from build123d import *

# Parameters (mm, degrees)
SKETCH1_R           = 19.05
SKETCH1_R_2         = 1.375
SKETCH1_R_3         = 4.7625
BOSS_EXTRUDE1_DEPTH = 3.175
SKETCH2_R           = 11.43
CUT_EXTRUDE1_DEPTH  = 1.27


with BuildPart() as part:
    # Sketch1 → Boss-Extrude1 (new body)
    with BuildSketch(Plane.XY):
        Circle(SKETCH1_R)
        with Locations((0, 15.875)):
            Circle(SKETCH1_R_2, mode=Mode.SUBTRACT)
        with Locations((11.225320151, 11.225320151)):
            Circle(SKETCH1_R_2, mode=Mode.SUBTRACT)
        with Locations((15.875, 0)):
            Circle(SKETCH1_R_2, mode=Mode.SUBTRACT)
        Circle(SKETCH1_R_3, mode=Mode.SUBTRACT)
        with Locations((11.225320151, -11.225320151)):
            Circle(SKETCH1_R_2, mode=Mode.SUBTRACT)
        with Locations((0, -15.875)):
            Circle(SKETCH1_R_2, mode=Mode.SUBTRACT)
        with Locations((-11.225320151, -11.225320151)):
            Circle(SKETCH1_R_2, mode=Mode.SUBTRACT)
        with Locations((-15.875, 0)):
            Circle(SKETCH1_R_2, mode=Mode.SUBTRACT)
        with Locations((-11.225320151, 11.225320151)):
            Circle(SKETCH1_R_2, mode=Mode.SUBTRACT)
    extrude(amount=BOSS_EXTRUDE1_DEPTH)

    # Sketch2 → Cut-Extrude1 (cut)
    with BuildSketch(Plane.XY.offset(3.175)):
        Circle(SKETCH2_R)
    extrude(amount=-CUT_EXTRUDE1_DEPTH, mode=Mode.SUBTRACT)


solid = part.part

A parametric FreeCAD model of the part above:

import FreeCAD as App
import Part
import Sketcher

V = App.Vector
Q = App.Units.Quantity

doc = App.newDocument("Part")
body = doc.addObject("PartDesign::Body", "Body")

sketch1 = doc.addObject("Sketcher::SketchObject", "Sketch")
body.addObject(sketch1)
sketch1.AttachmentSupport = (doc.XY_Plane, [""])
sketch1.MapMode = "FlatFace"
sketch1.addGeometry([
    Part.Circle(V(0, 0, 0), V(0, 0, 1), 19.1),
    Part.Circle(V(-11.2, -11.2, 0), V(0, 0, 1), 1.4),
    Part.Circle(V(0, -15.9, 0), V(0, 0, 1), 1.4),
    Part.Circle(V(11.2, -11.2, 0), V(0, 0, 1), 1.4),
    Part.Circle(V(-15.9, 0, 0), V(0, 0, 1), 1.4),
    Part.Circle(V(-11.2, 11.2, 0), V(0, 0, 1), 1.4),
    Part.Circle(V(0, 0, 0), V(0, 0, 1), 4.8),
    Part.Circle(V(15.9, 0, 0), V(0, 0, 1), 1.4),
    Part.Circle(V(0, 15.9, 0), V(0, 0, 1), 1.4),
    Part.Circle(V(11.2, 11.2, 0), V(0, 0, 1), 1.4),
], False)
sketch1.addConstraint([
    Sketcher.Constraint("Coincident", 0, 3, -1, 1),
    Sketcher.Constraint("Coincident", 6, 3, -1, 1),
    Sketcher.Constraint("Equal", 1, 2),
    Sketcher.Constraint("Equal", 2, 3),
    Sketcher.Constraint("Equal", 3, 4),
    Sketcher.Constraint("Equal", 4, 5),
    Sketcher.Constraint("Equal", 5, 7),
    Sketcher.Constraint("Equal", 7, 8),
    Sketcher.Constraint("Equal", 8, 9),
    Sketcher.Constraint("Symmetric", 3, 3, 5, 3, -1, 1),
    Sketcher.Constraint("Symmetric", 4, 3, 7, 3, -1, 1),
    Sketcher.Constraint("Symmetric", 2, 3, 8, 3, -1, 1),
    Sketcher.Constraint("Symmetric", 1, 3, 9, 3, -1, 1),
    Sketcher.Constraint("Symmetric", 1, 3, 3, 3, -2),
    Sketcher.Constraint("PointOnObject", 2, 3, -2),
    Sketcher.Constraint("PointOnObject", 4, 3, -1),
    Sketcher.Constraint("Diameter", 0, Q("1.5 in")),
    Sketcher.Constraint("Diameter", 6, Q("0.375 in")),
    Sketcher.Constraint("Diameter", 1, Q("2.75 mm")),
    Sketcher.Constraint("DistanceY", 2, 3, -1, 1, Q("0.625 in")),
    Sketcher.Constraint("DistanceX", 4, 3, -1, 1, Q("0.625 in")),
    Sketcher.Constraint("DistanceX", 1, 3, -1, 1, Q("11.22532 mm")),
    Sketcher.Constraint("DistanceY", 1, 3, -1, 1, Q("11.22532 mm")),
])
pad1 = doc.addObject("PartDesign::Pad", "Pad")
body.addObject(pad1)
pad1.Profile = sketch1
pad1.Length = Q("0.125 in")

sketch2 = doc.addObject("Sketcher::SketchObject", "Sketch001")
body.addObject(sketch2)
sketch2.AttachmentSupport = (doc.XY_Plane, [""])
sketch2.MapMode = "FlatFace"
sketch2.AttachmentOffset = App.Placement(V(0, 0, 0.125 * 25.4), App.Rotation())
sketch2.addGeometry(Part.Circle(V(0, 0, 0), V(0, 0, 1), 11), False)
sketch2.addConstraint([
    Sketcher.Constraint("Coincident", 0, 3, -1, 1),
    Sketcher.Constraint("Diameter", 0, Q("0.9 in")),
])
pocket1 = doc.addObject("PartDesign::Pocket", "Pocket")
body.addObject(pocket1)
pocket1.Profile = sketch2
pocket1.Length = Q("0.05 in")

doc.recompute()
